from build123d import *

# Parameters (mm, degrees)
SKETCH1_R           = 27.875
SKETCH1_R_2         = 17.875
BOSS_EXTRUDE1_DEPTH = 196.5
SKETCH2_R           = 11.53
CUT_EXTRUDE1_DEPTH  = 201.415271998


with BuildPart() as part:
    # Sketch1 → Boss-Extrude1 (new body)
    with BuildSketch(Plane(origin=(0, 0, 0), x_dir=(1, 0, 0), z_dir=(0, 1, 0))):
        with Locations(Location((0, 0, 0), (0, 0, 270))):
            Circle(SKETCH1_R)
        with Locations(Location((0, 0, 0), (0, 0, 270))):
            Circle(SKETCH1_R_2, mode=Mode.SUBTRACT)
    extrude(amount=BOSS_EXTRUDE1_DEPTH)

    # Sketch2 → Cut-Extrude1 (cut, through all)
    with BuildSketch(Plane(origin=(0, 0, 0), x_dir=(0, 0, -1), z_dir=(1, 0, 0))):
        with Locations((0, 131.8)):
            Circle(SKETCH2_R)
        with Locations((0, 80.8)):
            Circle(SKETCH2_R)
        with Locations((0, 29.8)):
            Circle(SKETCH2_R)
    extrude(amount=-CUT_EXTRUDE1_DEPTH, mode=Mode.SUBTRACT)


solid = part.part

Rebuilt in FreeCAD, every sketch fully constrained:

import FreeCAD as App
import Part
import Sketcher
from FreeCAD import Vector
Q = App.Units.Quantity

doc = App.newDocument("Part")
params = doc.addObject("Spreadsheet::Sheet", "Params")
for row, (alias, value) in enumerate([
    ("sketch1_diameter", "55.75 mm"),
    ("sketch1_diameter2", "35.75 mm"),
    ("pad1_length", "196.5 mm"),
    ("sketch2_diameter", "23.06 mm"),
], start=1):
    params.set(f"A{row}", alias)
    params.set(f"B{row}", "=" + value)
    params.setAlias(f"B{row}", alias)

body = doc.addObject("PartDesign::Body", "Body")

sketch1 = body.newObject("Sketcher::SketchObject", "Sketch")
sketch1.AttachmentSupport = (doc.getObject("XZ_Plane"), [""])
sketch1.MapMode = "FlatFace"
sketch1.addGeometry([
    Part.Circle(Vector(0, 0, 0), Vector(0, 0, 1), 28),
    Part.Circle(Vector(0, 0, 0), Vector(0, 0, 1), 18),
], False)
sketch1.addConstraint([
    Sketcher.Constraint("Coincident", 0, 3, -1, 1),
    Sketcher.Constraint("Coincident", 1, 3, -1, 1),
    Sketcher.Constraint("Diameter", 0, Q("55.75 mm")),
    Sketcher.Constraint("Diameter", 1, Q("35.75 mm")),
])
sketch1.setExpression("Constraints[2]", "Params.sketch1_diameter")
sketch1.setExpression("Constraints[3]", "Params.sketch1_diameter2")
pad1 = body.newObject("PartDesign::Pad", "Pad")
pad1.Profile = sketch1
pad1.setExpression("Length", "Params.pad1_length")
pad1.Reversed = True

sketch2 = body.newObject("Sketcher::SketchObject", "Sketch001")
sketch2.AttachmentSupport = (doc.getObject("YZ_Plane"), [""])
sketch2.MapMode = "FlatFace"
sketch2.addGeometry([
    Part.Circle(Vector(132, 0, 0), Vector(0, 0, 1), 12),
    Part.Circle(Vector(81, 0, 0), Vector(0, 0, 1), 12),
    Part.Circle(Vector(30, 0, 0), Vector(0, 0, 1), 12),
], False)
sketch2.addConstraint([
    Sketcher.Constraint("Equal", 0, 1),
    Sketcher.Constraint("Equal", 1, 2),
    Sketcher.Constraint("PointOnObject", 0, 3, -1),
    Sketcher.Constraint("PointOnObject", 1, 3, -1),
    Sketcher.Constraint("PointOnObject", 2, 3, -1),
    Sketcher.Constraint("Diameter", 0, Q("23.06 mm")),
    Sketcher.Constraint("DistanceX", 1, 3, 0, 3, Q("51 mm")),
    Sketcher.Constraint("DistanceX", 2, 3, 1, 3, Q("51 mm")),
    Sketcher.Constraint("DistanceX", -1, 1, 0, 3, Q("131.8 mm")),
])
sketch2.setExpression("Constraints[5]", "Params.sketch2_diameter")
pocket1 = body.newObject("PartDesign::Pocket", "Pocket")
pocket1.Profile = sketch2
pocket1.Type = "ThroughAll"

doc.recompute()
